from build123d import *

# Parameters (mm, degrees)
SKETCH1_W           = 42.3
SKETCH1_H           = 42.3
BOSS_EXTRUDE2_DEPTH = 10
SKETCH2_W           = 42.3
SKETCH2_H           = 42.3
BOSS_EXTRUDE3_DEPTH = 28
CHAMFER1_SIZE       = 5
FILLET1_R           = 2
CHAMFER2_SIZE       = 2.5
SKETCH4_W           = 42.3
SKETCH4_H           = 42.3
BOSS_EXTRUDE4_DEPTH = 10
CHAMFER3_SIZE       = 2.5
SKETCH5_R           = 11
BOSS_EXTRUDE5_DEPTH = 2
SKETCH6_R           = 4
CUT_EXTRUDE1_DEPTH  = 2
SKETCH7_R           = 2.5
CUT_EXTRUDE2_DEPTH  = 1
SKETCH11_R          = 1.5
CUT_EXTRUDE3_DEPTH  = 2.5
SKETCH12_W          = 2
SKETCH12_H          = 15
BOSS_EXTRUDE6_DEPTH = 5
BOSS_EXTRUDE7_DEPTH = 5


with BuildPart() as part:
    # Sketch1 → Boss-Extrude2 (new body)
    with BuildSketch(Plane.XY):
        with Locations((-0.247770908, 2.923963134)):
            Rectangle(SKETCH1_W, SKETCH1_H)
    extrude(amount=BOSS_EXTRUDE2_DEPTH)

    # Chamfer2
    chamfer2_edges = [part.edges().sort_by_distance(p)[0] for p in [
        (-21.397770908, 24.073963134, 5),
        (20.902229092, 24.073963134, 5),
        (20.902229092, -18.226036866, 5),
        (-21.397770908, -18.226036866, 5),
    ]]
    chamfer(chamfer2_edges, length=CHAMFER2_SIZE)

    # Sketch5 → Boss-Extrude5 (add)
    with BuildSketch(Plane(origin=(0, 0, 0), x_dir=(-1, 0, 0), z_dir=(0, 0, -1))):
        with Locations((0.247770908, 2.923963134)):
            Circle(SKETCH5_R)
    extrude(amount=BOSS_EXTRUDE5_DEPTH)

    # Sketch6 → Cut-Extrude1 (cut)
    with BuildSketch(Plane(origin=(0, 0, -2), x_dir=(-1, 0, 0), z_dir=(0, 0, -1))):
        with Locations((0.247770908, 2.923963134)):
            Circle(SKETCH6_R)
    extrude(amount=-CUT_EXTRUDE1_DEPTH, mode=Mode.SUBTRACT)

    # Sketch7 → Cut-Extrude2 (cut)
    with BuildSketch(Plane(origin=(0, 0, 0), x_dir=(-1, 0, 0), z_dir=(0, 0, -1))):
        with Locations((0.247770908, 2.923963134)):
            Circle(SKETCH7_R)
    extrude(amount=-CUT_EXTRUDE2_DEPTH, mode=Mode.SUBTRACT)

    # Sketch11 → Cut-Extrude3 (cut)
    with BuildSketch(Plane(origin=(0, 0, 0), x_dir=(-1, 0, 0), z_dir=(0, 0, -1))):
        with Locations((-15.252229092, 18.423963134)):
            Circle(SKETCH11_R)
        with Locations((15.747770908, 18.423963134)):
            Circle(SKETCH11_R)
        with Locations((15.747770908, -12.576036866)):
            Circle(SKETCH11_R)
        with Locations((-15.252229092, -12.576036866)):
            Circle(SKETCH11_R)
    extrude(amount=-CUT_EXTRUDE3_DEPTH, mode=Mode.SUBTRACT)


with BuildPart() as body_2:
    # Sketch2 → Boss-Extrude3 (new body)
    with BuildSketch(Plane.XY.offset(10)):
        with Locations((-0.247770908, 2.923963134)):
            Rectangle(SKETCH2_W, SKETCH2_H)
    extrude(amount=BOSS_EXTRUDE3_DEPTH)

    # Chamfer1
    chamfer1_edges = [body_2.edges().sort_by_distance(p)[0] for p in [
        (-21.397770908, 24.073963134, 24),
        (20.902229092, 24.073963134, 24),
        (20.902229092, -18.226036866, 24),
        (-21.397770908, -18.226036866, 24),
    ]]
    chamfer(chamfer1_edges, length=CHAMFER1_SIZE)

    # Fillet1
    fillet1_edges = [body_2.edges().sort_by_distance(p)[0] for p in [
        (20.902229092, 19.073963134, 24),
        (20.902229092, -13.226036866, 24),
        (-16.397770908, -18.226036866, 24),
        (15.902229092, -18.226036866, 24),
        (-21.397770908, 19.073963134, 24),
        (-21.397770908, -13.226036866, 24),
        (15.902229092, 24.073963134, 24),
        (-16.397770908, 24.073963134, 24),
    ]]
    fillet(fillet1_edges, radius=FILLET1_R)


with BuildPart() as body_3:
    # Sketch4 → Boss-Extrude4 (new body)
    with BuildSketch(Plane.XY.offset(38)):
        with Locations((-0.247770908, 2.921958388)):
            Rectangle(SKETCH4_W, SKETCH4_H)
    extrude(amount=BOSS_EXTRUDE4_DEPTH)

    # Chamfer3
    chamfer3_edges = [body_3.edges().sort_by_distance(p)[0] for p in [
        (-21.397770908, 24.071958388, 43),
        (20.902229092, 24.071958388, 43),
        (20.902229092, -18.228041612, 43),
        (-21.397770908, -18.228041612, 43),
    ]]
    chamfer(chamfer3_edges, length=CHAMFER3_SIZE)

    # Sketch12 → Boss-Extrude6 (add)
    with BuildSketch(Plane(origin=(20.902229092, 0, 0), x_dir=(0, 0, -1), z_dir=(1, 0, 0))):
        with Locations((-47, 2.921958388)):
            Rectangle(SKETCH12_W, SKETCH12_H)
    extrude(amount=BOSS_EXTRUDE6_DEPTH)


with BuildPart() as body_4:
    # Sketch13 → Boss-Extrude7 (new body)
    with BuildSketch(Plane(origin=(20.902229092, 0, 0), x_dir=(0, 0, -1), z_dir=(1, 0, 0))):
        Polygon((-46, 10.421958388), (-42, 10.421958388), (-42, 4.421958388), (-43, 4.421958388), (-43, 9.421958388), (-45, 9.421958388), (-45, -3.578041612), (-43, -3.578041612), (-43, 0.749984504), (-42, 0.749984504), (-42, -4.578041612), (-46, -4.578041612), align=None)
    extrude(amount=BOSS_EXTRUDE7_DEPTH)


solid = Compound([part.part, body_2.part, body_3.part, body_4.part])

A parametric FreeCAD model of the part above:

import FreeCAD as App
import Part
import Sketcher


def edges_at(feature, points):
    """Names of the edges that pass closest to the given points."""
    edges = feature.Shape.Edges
    near = lambda p: min(range(len(edges)), key=lambda i: edges[i].distToShape(Part.Vertex(*p))[0])
    return sorted({f"Edge{near(p) + 1}" for p in points})

doc = App.newDocument("Part")
body = doc.addObject("PartDesign::Body", "Body")

# Sketch on XY plane
sketch1 = body.newObject("Sketcher::SketchObject", "Sketch")
sketch1.AttachmentSupport = (doc.getObject("XY_Plane"), [""])
sketch1.MapMode = "FlatFace"
sketch1.addGeometry([
    Part.LineSegment(App.Vector(-21, 24, 0), App.Vector(-21, -18, 0)),
    Part.LineSegment(App.Vector(-21, -18, 0), App.Vector(21, -18, 0)),
    Part.LineSegment(App.Vector(21, -18, 0), App.Vector(21, 24, 0)),
    Part.LineSegment(App.Vector(21, 24, 0), App.Vector(-21, 24, 0)),
], False)
sketch1.addConstraint([
    Sketcher.Constraint("Coincident", 0, 2, 1, 1),
    Sketcher.Constraint("Coincident", 1, 2, 2, 1),
    Sketcher.Constraint("Coincident", 2, 2, 3, 1),
    Sketcher.Constraint("Coincident", 3, 2, 0, 1),
    Sketcher.Constraint("Vertical", 0),
    Sketcher.Constraint("Horizontal", 1),
    Sketcher.Constraint("Vertical", 2),
    Sketcher.Constraint("Horizontal", 3),
    Sketcher.Constraint("Equal", 3, 0),
    Sketcher.Constraint("DistanceX", 1, 1, 1, 2, 42.3),
    Sketcher.Constraint("DistanceX", 0, 2, -1, 1, 21.397771),
    Sketcher.Constraint("DistanceY", 0, 2, -1, 1, 18.226037),
])
pad1 = body.newObject("PartDesign::Pad", "Pad")
pad1.Profile = sketch1
pad1.Length = 10
doc.recompute()

chamfer = body.newObject("PartDesign::Chamfer", "Chamfer")
chamfer.Base = (pad1, edges_at(pad1, [
    (-21.398, 24.074, 5),
    (20.902, 24.074, 5),
    (20.902, -18.226, 5),
    (-21.398, -18.226, 5),
]))
chamfer.Size = 2.5

# Sketch on XY plane
sketch2 = body.newObject("Sketcher::SketchObject", "Sketch001")
sketch2.AttachmentSupport = (doc.getObject("XY_Plane"), [""])
sketch2.MapMode = "FlatFace"
sketch2.addGeometry(Part.Circle(App.Vector(0, 3, 0), App.Vector(0, 0, 1), 11), False)
sketch2.addConstraint([
    Sketcher.Constraint("Diameter", 0, 22.0),
    Sketcher.Constraint("DistanceX", 0, 3, -1, 1, 0.247771),
    Sketcher.Constraint("DistanceY", -1, 1, 0, 3, 2.923963),
])
pad2 = body.newObject("PartDesign::Pad", "Pad001")
pad2.Profile = sketch2
pad2.Length = 2
pad2.Reversed = True

# Sketch on XY plane
sketch3 = body.newObject("Sketcher::SketchObject", "Sketch002")
sketch3.AttachmentSupport = (doc.getObject("XY_Plane"), [""])
sketch3.MapMode = "FlatFace"
sketch3.AttachmentOffset = App.Placement(App.Vector(0, 0, -2), App.Rotation())
sketch3.addGeometry(Part.Circle(App.Vector(-0.2, 2.9, 0), App.Vector(0, 0, 1), 4), False)
sketch3.addConstraint([
    Sketcher.Constraint("Diameter", 0, 8.0),
    Sketcher.Constraint("DistanceX", 0, 3, -1, 1, 0.247771),
    Sketcher.Constraint("DistanceY", -1, 1, 0, 3, 2.923963),
])
pocket1 = body.newObject("PartDesign::Pocket", "Pocket")
pocket1.Profile = sketch3
pocket1.Length = 2
pocket1.Reversed = True

# Sketch on XY plane
sketch4 = body.newObject("Sketcher::SketchObject", "Sketch003")
sketch4.AttachmentSupport = (doc.getObject("XY_Plane"), [""])
sketch4.MapMode = "FlatFace"
sketch4.addGeometry(Part.Circle(App.Vector(-0.2, 2.9, 0), App.Vector(0, 0, 1), 2.5), False)
sketch4.addConstraint([
    Sketcher.Constraint("Diameter", 0, 5.0),
    Sketcher.Constraint("DistanceX", 0, 3, -1, 1, 0.247771),
    Sketcher.Constraint("DistanceY", -1, 1, 0, 3, 2.923963),
])
pocket2 = body.newObject("PartDesign::Pocket", "Pocket001")
pocket2.Profile = sketch4
pocket2.Length = 1
pocket2.Reversed = True

# Sketch on XY plane
sketch5 = body.newObject("Sketcher::SketchObject", "Sketch004")
sketch5.AttachmentSupport = (doc.getObject("XY_Plane"), [""])
sketch5.MapMode = "FlatFace"
sketch5.addGeometry([
    Part.Circle(App.Vector(15.3, 18.4, 0), App.Vector(0, 0, 1), 1.5),
    Part.Circle(App.Vector(-15.7, 18.4, 0), App.Vector(0, 0, 1), 1.5),
    Part.Circle(App.Vector(-15.7, -12.6, 0), App.Vector(0, 0, 1), 1.5),
    Part.Circle(App.Vector(15.3, -12.6, 0), App.Vector(0, 0, 1), 1.5),
], False)
sketch5.addConstraint([
    Sketcher.Constraint("Equal", 0, 1),
    Sketcher.Constraint("Equal", 1, 2),
    Sketcher.Constraint("Equal", 2, 3),
    Sketcher.Constraint("Horizontal", 0, 3, 1, 3),
    Sketcher.Constraint("Horizontal", 2, 3, 3, 3),
    Sketcher.Constraint("Vertical", 1, 3, 2, 3),
    Sketcher.Constraint("Vertical", 0, 3, 3, 3),
    Sketcher.Constraint("Diameter", 0, 3.0),
    Sketcher.Constraint("DistanceX", 1, 3, 0, 3, 31.0),
    Sketcher.Constraint("DistanceY", 2, 3, 1, 3, 31.0),
    Sketcher.Constraint("DistanceX", -1, 1, 0, 3, 15.252229),
    Sketcher.Constraint("DistanceY", -1, 1, 0, 3, 18.423963),
])
pocket3 = body.newObject("PartDesign::Pocket", "Pocket002")
pocket3.Profile = sketch5
pocket3.Length = 2.5
pocket3.Reversed = True
body2 = doc.addObject("PartDesign::Body", "Body001")

# Sketch on XY plane
sketch6 = body2.newObject("Sketcher::SketchObject", "Sketch005")
sketch6.AttachmentSupport = (doc.getObject("XY_Plane001"), [""])
sketch6.MapMode = "FlatFace"
sketch6.AttachmentOffset = App.Placement(App.Vector(0, 0, 10), App.Rotation())
sketch6.addGeometry([
    Part.LineSegment(App.Vector(-21, 24, 0), App.Vector(-21, -18, 0)),
    Part.LineSegment(App.Vector(-21, -18, 0), App.Vector(21, -18, 0)),
    Part.LineSegment(App.Vector(21, -18, 0), App.Vector(21, 24, 0)),
    Part.LineSegment(App.Vector(21, 24, 0), App.Vector(-21, 24, 0)),
], False)
sketch6.addConstraint([
    Sketcher.Constraint("Coincident", 0, 2, 1, 1),
    Sketcher.Constraint("Coincident", 1, 2, 2, 1),
    Sketcher.Constraint("Coincident", 2, 2, 3, 1),
    Sketcher.Constraint("Coincident", 3, 2, 0, 1),
    Sketcher.Constraint("Vertical", 0),
    Sketcher.Constraint("Horizontal", 1),
    Sketcher.Constraint("Vertical", 2),
    Sketcher.Constraint("Horizontal", 3),
    Sketcher.Constraint("Equal", 3, 0),
    Sketcher.Constraint("DistanceX", 1, 1, 1, 2, 42.3),
    Sketcher.Constraint("DistanceX", 0, 2, -1, 1, 21.397771),
    Sketcher.Constraint("DistanceY", 0, 2, -1, 1, 18.226037),
])
pad3 = body2.newObject("PartDesign::Pad", "Pad002")
pad3.Profile = sketch6
pad3.Length = 28
doc.recompute()

chamfer2 = body2.newObject("PartDesign::Chamfer", "Chamfer001")
chamfer2.Base = (pad3, edges_at(pad3, [
    (-21.398, 24.074, 24),
    (20.902, 24.074, 24),
    (20.902, -18.226, 24),
    (-21.398, -18.226, 24),
]))
chamfer2.Size = 5
doc.recompute()

fillet = body2.newObject("PartDesign::Fillet", "Fillet")
fillet.Base = (chamfer2, edges_at(chamfer2, [
    (20.902, 19.074, 24),
    (20.902, -13.226, 24),
    (-16.398, -18.226, 24),
    (15.902, -18.226, 24),
    (-21.398, 19.074, 24),
    (-21.398, -13.226, 24),
    (15.902, 24.074, 24),
    (-16.398, 24.074, 24),
]))
fillet.Radius = 2
body3 = doc.addObject("PartDesign::Body", "Body002")

# Sketch on XY plane
sketch7 = body3.newObject("Sketcher::SketchObject", "Sketch006")
sketch7.AttachmentSupport = (doc.getObject("XY_Plane002"), [""])
sketch7.MapMode = "FlatFace"
sketch7.AttachmentOffset = App.Placement(App.Vector(0, 0, 38), App.Rotation())
sketch7.addGeometry([
    Part.LineSegment(App.Vector(-21, 24, 0), App.Vector(-21, -18, 0)),
    Part.LineSegment(App.Vector(-21, -18, 0), App.Vector(21, -18, 0)),
    Part.LineSegment(App.Vector(21, -18, 0), App.Vector(21, 24, 0)),
    Part.LineSegment(App.Vector(21, 24, 0), App.Vector(-21, 24, 0)),
], False)
sketch7.addConstraint([
    Sketcher.Constraint("Coincident", 0, 2, 1, 1),
    Sketcher.Constraint("Coincident", 1, 2, 2, 1),
    Sketcher.Constraint("Coincident", 2, 2, 3, 1),
    Sketcher.Constraint("Coincident", 3, 2, 0, 1),
    Sketcher.Constraint("Vertical", 0),
    Sketcher.Constraint("Horizontal", 1),
    Sketcher.Constraint("Vertical", 2),
    Sketcher.Constraint("Horizontal", 3),
    Sketcher.Constraint("Equal", 3, 0),
    Sketcher.Constraint("DistanceX", 1, 1, 1, 2, 42.3),
    Sketcher.Constraint("DistanceX", 0, 2, -1, 1, 21.397771),
    Sketcher.Constraint("DistanceY", 0, 2, -1, 1, 18.228042),
])
pad4 = body3.newObject("PartDesign::Pad", "Pad003")
pad4.Profile = sketch7
pad4.Length = 10
doc.recompute()

chamfer3 = body3.newObject("PartDesign::Chamfer", "Chamfer002")
chamfer3.Base = (pad4, edges_at(pad4, [
    (-21.398, 24.072, 43),
    (20.902, 24.072, 43),
    (20.902, -18.228, 43),
    (-21.398, -18.228, 43),
]))
chamfer3.Size = 2.5

# Sketch on YZ plane
sketch8 = body3.newObject("Sketcher::SketchObject", "Sketch007")
sketch8.AttachmentSupport = (doc.getObject("YZ_Plane002"), [""])
sketch8.MapMode = "FlatFace"
sketch8.AttachmentOffset = App.Placement(App.Vector(0, 0, 20.902229), App.Rotation())
sketch8.addGeometry([
    Part.LineSegment(App.Vector(10.4, 48, 0), App.Vector(-4.6, 48, 0)),
    Part.LineSegment(App.Vector(-4.6, 48, 0), App.Vector(-4.6, 46, 0)),
    Part.LineSegment(App.Vector(-4.6, 46, 0), App.Vector(10.4, 46, 0)),
    Part.LineSegment(App.Vector(10.4, 46, 0), App.Vector(10.4, 48, 0)),
], False)
sketch8.addConstraint([
    Sketcher.Constraint("Coincident", 0, 2, 1, 1),
    Sketcher.Constraint("Coincident", 1, 2, 2, 1),
    Sketcher.Constraint("Coincident", 2, 2, 3, 1),
    Sketcher.Constraint("Coincident", 3, 2, 0, 1),
    Sketcher.Constraint("Horizontal", 0),
    Sketcher.Constraint("Vertical", 1),
    Sketcher.Constraint("Horizontal", 2),
    Sketcher.Constraint("Vertical", 3),
    Sketcher.Constraint("DistanceX", 0, 2, 0, 1, 15.0),
    Sketcher.Constraint("DistanceY", 1, 2, 1, 1, 2.0),
    Sketcher.Constraint("DistanceY", -1, 1, 0, 2, 48.0),
    Sketcher.Constraint("DistanceX", 0, 2, -1, 1, 4.578042),
])
pad5 = body3.newObject("PartDesign::Pad", "Pad004")
pad5.Profile = sketch8
pad5.Length = 5
body4 = doc.addObject("PartDesign::Body", "Body003")

# Sketch on YZ plane
sketch9 = body4.newObject("Sketcher::SketchObject", "Sketch008")
sketch9.AttachmentSupport = (doc.getObject("YZ_Plane003"), [""])
sketch9.MapMode = "FlatFace"
sketch9.AttachmentOffset = App.Placement(App.Vector(0, 0, 20.902229), App.Rotation())
sketch9.addGeometry([
    Part.LineSegment(App.Vector(10.4, 42, 0), App.Vector(10.4, 46, 0)),  # 0
    Part.LineSegment(App.Vector(10.4, 46, 0), App.Vector(-4.6, 46, 0)),  # 1
    Part.LineSegment(App.Vector(-4.6, 46, 0), App.Vector(-4.6, 42, 0)),  # 2
    Part.LineSegment(App.Vector(-4.6, 42, 0), App.Vector(0.7, 42, 0)),  # 3
    Part.LineSegment(App.Vector(0.7, 42, 0), App.Vector(0.7, 43, 0)),  # 4
    Part.LineSegment(App.Vector(0.7, 43, 0), App.Vector(-3.6, 43, 0)),  # 5
    Part.LineSegment(App.Vector(-3.6, 43, 0), App.Vector(-3.6, 45, 0)),  # 6
    Part.LineSegment(App.Vector(-3.6, 45, 0), App.Vector(9.4, 45, 0)),  # 7
    Part.LineSegment(App.Vector(9.4, 45, 0), App.Vector(9.4, 43, 0)),  # 8
    Part.LineSegment(App.Vector(9.4, 43, 0), App.Vector(4.4, 43, 0)),  # 9
    Part.LineSegment(App.Vector(4.4, 43, 0), App.Vector(4.4, 42, 0)),  # 10
    Part.LineSegment(App.Vector(4.4, 42, 0), App.Vector(10.4, 42, 0)),  # 11
], False)
sketch9.addConstraint([
    Sketcher.Constraint("Coincident", 0, 2, 1, 1),
    Sketcher.Constraint("Coincident", 1, 2, 2, 1),
    Sketcher.Constraint("Coincident", 2, 2, 3, 1),
    Sketcher.Constraint("Coincident", 3, 2, 4, 1),
    Sketcher.Constraint("Coincident", 4, 2, 5, 1),
    Sketcher.Constraint("Coincident", 5, 2, 6, 1),
    Sketcher.Constraint("Coincident", 6, 2, 7, 1),
    Sketcher.Constraint("Coincident", 7, 2, 8, 1),
    Sketcher.Constraint("Coincident", 8, 2, 9, 1),
    Sketcher.Constraint("Coincident", 9, 2, 10, 1),
    Sketcher.Constraint("Coincident", 10, 2, 11, 1),
    Sketcher.Constraint("Coincident", 11, 2, 0, 1),
    Sketcher.Constraint("Vertical", 0),
    Sketcher.Constraint("Horizontal", 1),
    Sketcher.Constraint("Vertical", 2),
    Sketcher.Constraint("Horizontal", 3),
    Sketcher.Constraint("Vertical", 4),
    Sketcher.Constraint("Horizontal", 5),
    Sketcher.Constraint("Vertical", 6),
    Sketcher.Constraint("Horizontal", 7),
    Sketcher.Constraint("Vertical", 8),
    Sketcher.Constraint("Horizontal", 9),
    Sketcher.Constraint("Vertical", 10),
    Sketcher.Constraint("Horizontal", 11),
    Sketcher.Constraint("Horizontal", 5, 2, 8, 2),
    Sketcher.Constraint("Horizontal", 3, 2, 10, 2),
    Sketcher.Constraint("DistanceX", 1, 2, 1, 1, 15.0),
    Sketcher.Constraint("DistanceX", 7, 1, 7, 2, 13.0),
    Sketcher.Constraint("DistanceX", 9, 2, 9, 1, 5.0),
    Sketcher.Constraint("DistanceX", 11, 1, 11, 2, 6.0),
    Sketcher.Constraint("DistanceY", 0, 1, 0, 2, 4.0),
    Sketcher.Constraint("DistanceY", 4, 1, 4, 2, 1.0),
    Sketcher.Constraint("DistanceY", 6, 1, 6, 2, 2.0),
    Sketcher.Constraint("DistanceY", -1, 1, 0, 2, 46.0),
    Sketcher.Constraint("DistanceX", 3, 1, 3, 2, 5.328026),
    Sketcher.Constraint("DistanceX", -1, 1, 0, 2, 10.421958),
])
pad6 = body4.newObject("PartDesign::Pad", "Pad005")
pad6.Profile = sketch9
pad6.Length = 5

doc.recompute()
